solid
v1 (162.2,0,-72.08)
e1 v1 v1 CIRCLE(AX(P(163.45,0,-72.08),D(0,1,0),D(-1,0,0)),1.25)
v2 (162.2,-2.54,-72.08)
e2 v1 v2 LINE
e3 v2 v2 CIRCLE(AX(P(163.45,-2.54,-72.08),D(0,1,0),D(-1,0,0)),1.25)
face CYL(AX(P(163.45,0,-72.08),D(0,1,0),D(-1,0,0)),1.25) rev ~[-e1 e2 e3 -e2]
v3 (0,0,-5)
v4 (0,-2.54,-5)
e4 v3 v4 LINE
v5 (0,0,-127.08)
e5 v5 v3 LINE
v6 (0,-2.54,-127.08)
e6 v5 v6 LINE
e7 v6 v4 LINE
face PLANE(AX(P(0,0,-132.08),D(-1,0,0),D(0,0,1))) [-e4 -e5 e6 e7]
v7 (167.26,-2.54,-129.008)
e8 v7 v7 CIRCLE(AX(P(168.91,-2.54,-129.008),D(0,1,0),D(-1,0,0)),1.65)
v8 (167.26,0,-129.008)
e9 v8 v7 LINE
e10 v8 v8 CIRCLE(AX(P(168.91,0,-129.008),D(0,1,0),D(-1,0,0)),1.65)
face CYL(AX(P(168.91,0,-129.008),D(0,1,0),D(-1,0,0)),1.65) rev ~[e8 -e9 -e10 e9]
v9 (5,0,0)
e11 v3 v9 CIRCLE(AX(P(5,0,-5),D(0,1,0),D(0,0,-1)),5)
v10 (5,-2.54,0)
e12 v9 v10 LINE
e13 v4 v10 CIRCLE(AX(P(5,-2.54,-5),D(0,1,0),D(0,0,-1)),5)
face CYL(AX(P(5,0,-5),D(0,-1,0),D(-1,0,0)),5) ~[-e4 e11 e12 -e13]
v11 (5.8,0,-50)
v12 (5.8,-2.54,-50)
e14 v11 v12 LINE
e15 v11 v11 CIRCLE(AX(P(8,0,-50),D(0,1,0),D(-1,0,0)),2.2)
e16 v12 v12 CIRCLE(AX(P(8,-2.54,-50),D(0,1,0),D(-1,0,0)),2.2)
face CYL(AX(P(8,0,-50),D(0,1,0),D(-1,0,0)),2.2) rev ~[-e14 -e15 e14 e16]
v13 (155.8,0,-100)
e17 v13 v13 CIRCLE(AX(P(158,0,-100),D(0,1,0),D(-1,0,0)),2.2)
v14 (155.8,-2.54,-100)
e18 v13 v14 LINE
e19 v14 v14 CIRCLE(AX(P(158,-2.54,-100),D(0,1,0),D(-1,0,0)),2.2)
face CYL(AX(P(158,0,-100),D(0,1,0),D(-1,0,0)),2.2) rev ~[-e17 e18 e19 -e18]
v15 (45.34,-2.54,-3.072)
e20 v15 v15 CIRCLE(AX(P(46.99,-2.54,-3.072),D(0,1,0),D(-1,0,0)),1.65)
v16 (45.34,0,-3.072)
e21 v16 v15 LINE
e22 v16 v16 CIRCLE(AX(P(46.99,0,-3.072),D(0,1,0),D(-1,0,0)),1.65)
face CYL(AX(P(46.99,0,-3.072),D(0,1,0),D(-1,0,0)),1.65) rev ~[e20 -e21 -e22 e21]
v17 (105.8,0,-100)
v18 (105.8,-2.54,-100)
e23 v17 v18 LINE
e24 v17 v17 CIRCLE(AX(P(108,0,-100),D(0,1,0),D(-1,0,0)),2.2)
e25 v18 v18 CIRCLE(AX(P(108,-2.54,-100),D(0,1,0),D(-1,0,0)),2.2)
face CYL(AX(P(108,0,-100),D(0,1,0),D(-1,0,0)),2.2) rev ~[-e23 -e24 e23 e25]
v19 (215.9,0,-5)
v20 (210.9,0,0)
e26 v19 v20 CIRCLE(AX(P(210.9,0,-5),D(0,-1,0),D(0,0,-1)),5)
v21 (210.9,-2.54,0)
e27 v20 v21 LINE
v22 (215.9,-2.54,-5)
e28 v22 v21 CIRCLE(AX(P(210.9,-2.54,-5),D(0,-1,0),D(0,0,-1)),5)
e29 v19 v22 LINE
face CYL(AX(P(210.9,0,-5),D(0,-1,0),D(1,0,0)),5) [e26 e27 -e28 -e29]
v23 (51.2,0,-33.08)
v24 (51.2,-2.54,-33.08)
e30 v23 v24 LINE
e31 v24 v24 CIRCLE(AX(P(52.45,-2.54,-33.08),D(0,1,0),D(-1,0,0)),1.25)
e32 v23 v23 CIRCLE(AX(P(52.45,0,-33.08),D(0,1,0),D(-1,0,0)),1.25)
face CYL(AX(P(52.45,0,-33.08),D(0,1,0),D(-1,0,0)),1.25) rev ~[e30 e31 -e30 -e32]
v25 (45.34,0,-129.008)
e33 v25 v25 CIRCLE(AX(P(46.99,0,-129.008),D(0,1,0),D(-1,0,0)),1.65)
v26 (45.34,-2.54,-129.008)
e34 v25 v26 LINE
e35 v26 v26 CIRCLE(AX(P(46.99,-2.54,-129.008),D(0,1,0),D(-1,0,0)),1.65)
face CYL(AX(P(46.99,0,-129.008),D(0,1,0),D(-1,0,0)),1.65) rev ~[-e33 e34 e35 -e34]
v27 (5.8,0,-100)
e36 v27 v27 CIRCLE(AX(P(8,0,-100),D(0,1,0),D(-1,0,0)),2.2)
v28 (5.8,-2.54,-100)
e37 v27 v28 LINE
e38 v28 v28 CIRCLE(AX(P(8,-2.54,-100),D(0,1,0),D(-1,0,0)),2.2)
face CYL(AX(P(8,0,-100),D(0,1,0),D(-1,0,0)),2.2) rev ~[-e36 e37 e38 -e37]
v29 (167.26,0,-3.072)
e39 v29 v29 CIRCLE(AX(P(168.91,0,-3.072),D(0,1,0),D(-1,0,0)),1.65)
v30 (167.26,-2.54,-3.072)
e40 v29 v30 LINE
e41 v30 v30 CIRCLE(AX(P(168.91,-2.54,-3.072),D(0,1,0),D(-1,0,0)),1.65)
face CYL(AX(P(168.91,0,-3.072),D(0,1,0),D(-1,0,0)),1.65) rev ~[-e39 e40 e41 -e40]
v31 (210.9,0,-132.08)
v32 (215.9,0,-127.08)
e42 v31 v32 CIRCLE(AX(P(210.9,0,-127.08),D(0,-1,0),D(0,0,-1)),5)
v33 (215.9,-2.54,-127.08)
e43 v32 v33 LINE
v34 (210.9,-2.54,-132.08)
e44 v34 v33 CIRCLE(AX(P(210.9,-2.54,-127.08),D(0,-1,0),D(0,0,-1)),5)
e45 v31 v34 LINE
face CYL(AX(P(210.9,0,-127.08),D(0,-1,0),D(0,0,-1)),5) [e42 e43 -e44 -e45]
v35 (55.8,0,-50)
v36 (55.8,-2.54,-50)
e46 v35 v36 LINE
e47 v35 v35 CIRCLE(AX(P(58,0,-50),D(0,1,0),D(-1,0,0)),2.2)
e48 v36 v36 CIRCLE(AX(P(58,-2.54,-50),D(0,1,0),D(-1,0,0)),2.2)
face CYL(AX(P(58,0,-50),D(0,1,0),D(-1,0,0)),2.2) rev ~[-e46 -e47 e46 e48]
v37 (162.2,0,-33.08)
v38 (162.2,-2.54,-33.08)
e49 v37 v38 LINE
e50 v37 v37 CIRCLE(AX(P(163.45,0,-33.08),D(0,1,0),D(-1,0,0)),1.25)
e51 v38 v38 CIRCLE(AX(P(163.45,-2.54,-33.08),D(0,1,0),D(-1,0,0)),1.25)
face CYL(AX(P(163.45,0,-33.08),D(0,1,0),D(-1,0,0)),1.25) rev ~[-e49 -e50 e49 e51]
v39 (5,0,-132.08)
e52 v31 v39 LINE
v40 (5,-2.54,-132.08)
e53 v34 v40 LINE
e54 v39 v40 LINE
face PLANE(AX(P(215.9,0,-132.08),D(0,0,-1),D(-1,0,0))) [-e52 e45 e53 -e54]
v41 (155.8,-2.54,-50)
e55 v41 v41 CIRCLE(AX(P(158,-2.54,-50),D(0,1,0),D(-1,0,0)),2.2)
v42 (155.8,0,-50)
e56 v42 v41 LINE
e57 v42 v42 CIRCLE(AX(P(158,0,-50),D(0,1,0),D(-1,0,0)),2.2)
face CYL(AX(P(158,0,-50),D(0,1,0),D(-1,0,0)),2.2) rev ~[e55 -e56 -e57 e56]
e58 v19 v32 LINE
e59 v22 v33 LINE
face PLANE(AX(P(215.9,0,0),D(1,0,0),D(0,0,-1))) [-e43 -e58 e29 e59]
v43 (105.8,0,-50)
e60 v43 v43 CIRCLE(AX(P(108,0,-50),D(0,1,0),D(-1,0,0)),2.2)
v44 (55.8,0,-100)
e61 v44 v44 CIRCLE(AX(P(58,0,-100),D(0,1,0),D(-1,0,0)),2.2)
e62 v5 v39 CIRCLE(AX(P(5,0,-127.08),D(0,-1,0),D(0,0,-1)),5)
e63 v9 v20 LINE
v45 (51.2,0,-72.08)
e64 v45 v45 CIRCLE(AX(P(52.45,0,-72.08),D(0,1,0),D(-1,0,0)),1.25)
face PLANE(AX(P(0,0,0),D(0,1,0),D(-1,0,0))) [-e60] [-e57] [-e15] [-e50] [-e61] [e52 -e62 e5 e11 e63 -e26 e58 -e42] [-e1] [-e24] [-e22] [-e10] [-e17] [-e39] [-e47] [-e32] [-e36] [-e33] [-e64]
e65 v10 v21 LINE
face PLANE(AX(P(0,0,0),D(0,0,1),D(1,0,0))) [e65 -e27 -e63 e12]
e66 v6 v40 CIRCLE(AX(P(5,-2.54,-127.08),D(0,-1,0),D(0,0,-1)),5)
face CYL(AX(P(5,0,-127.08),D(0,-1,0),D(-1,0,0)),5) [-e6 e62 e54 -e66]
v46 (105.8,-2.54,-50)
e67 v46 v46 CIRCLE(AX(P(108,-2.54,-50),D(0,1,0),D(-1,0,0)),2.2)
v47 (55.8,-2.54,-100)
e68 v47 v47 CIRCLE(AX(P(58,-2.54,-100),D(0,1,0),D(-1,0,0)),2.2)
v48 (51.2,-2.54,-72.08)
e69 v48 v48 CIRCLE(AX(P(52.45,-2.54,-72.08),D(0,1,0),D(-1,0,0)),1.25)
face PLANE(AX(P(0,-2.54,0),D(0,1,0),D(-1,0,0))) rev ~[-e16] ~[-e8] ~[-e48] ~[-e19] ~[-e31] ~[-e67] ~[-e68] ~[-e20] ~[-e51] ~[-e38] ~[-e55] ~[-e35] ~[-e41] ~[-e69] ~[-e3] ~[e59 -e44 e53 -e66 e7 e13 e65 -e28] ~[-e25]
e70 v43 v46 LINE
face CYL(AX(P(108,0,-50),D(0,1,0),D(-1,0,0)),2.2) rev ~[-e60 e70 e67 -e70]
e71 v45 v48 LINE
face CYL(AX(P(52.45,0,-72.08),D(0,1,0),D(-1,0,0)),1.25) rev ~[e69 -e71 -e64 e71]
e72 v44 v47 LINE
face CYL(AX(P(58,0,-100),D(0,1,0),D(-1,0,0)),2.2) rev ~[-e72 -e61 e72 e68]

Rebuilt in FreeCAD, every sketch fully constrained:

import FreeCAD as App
import Part
import Sketcher

V = App.Vector


def edges_at(feature, points):
    """Names of the edges that pass closest to the given points."""
    edges = feature.Shape.Edges
    near = lambda p: min(range(len(edges)), key=lambda i: edges[i].distToShape(Part.Vertex(*p))[0])
    return sorted({f"Edge{near(p) + 1}" for p in points})


def add_polygon(sketch, points):
    """Adds a closed chain of lines whose ends are joined by coincident constraints."""
    first, n = sketch.GeometryCount, len(points)
    for a, b in zip(points, points[1:] + points[:1]):
        sketch.addGeometry(Part.LineSegment(App.Vector(*a, 0), App.Vector(*b, 0)), False)
    for i in range(n):
        sketch.addConstraint(Sketcher.Constraint("Coincident", first + i, 2, first + (i + 1) % n, 1))

doc = App.newDocument("Part")
params = doc.addObject("Spreadsheet::Sheet", "Params")
for row, (alias, value) in enumerate([
    ("sketch1_diameter", "3.3 mm"),
    ("sketch1_diameter2", "4.4 mm"),
    ("sketch1_diameter3", "2.5 mm"),
    ("sketch1_width", "215.9 mm"),
    ("sketch1_height", "132.08 mm"),
    ("pad1_length", "2.54 mm"),
    ("fillet_radius", "5 mm"),
], start=1):
    params.set(f"A{row}", alias)
    params.set(f"B{row}", "=" + value)
    params.setAlias(f"B{row}", alias)

body = doc.addObject("PartDesign::Body", "Body")

# Sketch on XZ plane
sketch1 = doc.addObject("Sketcher::SketchObject", "Sketch")
body.addObject(sketch1)
sketch1.AttachmentSupport = (doc.XZ_Plane, [""])
sketch1.MapMode = "FlatFace"
add_polygon(sketch1, [(0, -132.1), (0, 0), (215.9, 0), (215.9, -132.1)])  # lines 0-3
sketch1.addGeometry(Part.Circle(V(168.9, -129, 0), V(0, 0, 1), 1.6), False)  # 4
sketch1.addGeometry(Part.Circle(V(158, -100, 0), V(0, 0, 1), 2.2), False)  # 5
sketch1.addGeometry(Part.Circle(V(108, -100, 0), V(0, 0, 1), 2.2), False)  # 6
sketch1.addGeometry(Part.Circle(V(163.4, -72.1, 0), V(0, 0, 1), 1.2), False)  # 7
sketch1.addGeometry(Part.Circle(V(58, -100, 0), V(0, 0, 1), 2.2), False)  # 8
sketch1.addGeometry(Part.Circle(V(47, -129, 0), V(0, 0, 1), 1.6), False)  # 9
sketch1.addGeometry(Part.Circle(V(8, -100, 0), V(0, 0, 1), 2.2), False)  # 10
sketch1.addGeometry(Part.Circle(V(52.5, -72.1, 0), V(0, 0, 1), 1.2), False)  # 11
sketch1.addGeometry(Part.Circle(V(163.4, -33.1, 0), V(0, 0, 1), 1.2), False)  # 12
sketch1.addGeometry(Part.Circle(V(158, -50, 0), V(0, 0, 1), 2.2), False)  # 13
sketch1.addGeometry(Part.Circle(V(108, -50, 0), V(0, 0, 1), 2.2), False)  # 14
sketch1.addGeometry(Part.Circle(V(168.9, -3.1, 0), V(0, 0, 1), 1.6), False)  # 15
sketch1.addGeometry(Part.Circle(V(58, -50, 0), V(0, 0, 1), 2.2), False)  # 16
sketch1.addGeometry(Part.Circle(V(8, -50, 0), V(0, 0, 1), 2.2), False)  # 17
sketch1.addGeometry(Part.Circle(V(52.5, -33.1, 0), V(0, 0, 1), 1.2), False)  # 18
sketch1.addGeometry(Part.Circle(V(47, -3.1, 0), V(0, 0, 1), 1.6), False)  # 19
sketch1.addConstraint([
    Sketcher.Constraint("Vertical", 0),
    Sketcher.Constraint("Horizontal", 1),
    Sketcher.Constraint("Vertical", 2),
    Sketcher.Constraint("Horizontal", 3),
    Sketcher.Constraint("Coincident", 0, 2, -1, 1),
    Sketcher.Constraint("Equal", 5, 6),
    Sketcher.Constraint("Equal", 6, 8),
    Sketcher.Constraint("Equal", 4, 9),
    Sketcher.Constraint("Equal", 8, 10),
    Sketcher.Constraint("Equal", 7, 11),
    Sketcher.Constraint("Equal", 11, 12),
    Sketcher.Constraint("Equal", 10, 13),
    Sketcher.Constraint("Equal", 13, 14),
    Sketcher.Constraint("Equal", 9, 15),
    Sketcher.Constraint("Equal", 14, 16),
    Sketcher.Constraint("Equal", 16, 17),
    Sketcher.Constraint("Equal", 12, 18),
    Sketcher.Constraint("Equal", 15, 19),
    Sketcher.Constraint("Horizontal", 5, 3, 6, 3),
    Sketcher.Constraint("Horizontal", 6, 3, 8, 3),
    Sketcher.Constraint("Horizontal", 4, 3, 9, 3),
    Sketcher.Constraint("Horizontal", 8, 3, 10, 3),
    Sketcher.Constraint("Horizontal", 7, 3, 11, 3),
    Sketcher.Constraint("Horizontal", 13, 3, 14, 3),
    Sketcher.Constraint("Horizontal", 14, 3, 16, 3),
    Sketcher.Constraint("Horizontal", 16, 3, 17, 3),
    Sketcher.Constraint("Horizontal", 12, 3, 18, 3),
    Sketcher.Constraint("Horizontal", 15, 3, 19, 3),
    Sketcher.Constraint("Vertical", 7, 3, 12, 3),
    Sketcher.Constraint("Vertical", 5, 3, 13, 3),
    Sketcher.Constraint("Vertical", 6, 3, 14, 3),
    Sketcher.Constraint("Vertical", 4, 3, 15, 3),
    Sketcher.Constraint("Vertical", 8, 3, 16, 3),
    Sketcher.Constraint("Vertical", 10, 3, 17, 3),
    Sketcher.Constraint("Vertical", 11, 3, 18, 3),
    Sketcher.Constraint("Vertical", 9, 3, 19, 3),
    Sketcher.Constraint("Diameter", 4, 3.3),
    Sketcher.Constraint("Diameter", 5, 4.4),
    Sketcher.Constraint("Diameter", 7, 2.5),
    Sketcher.Constraint("DistanceX", 1, 1, 1, 2, 215.9),
    Sketcher.Constraint("DistanceX", -1, 1, 10, 3, 8.0),
    Sketcher.Constraint("DistanceY", 13, 3, -1, 1, 50.0),
    Sketcher.Constraint("DistanceX", 6, 3, 5, 3, 50.0),
    Sketcher.Constraint("DistanceX", 8, 3, 6, 3, 50.0),
    Sketcher.Constraint("DistanceX", 10, 3, 8, 3, 50.0),
    Sketcher.Constraint("DistanceY", 7, 3, 12, 3, 39.0),
    Sketcher.Constraint("DistanceX", 11, 3, 12, 3, 111.0),
    Sketcher.Constraint("DistanceY", 5, 3, 13, 3, 50.0),
    Sketcher.Constraint("DistanceY", 2, 2, 7, 3, 60.0),
    Sketcher.Constraint("DistanceY", 0, 1, 0, 2, 132.08),
    Sketcher.Constraint("DistanceX", -1, 1, 9, 3, 46.99),
    Sketcher.Constraint("DistanceX", -1, 1, 11, 3, 52.45),
    Sketcher.Constraint("DistanceX", 9, 3, 4, 3, 121.92),
    Sketcher.Constraint("DistanceY", 15, 3, -1, 1, 3.072),
    Sketcher.Constraint("DistanceY", 2, 2, 4, 3, 3.072),
])
sketch1.setExpression("Constraints[40]", "Params.sketch1_diameter")
sketch1.setExpression("Constraints[41]", "Params.sketch1_diameter2")
sketch1.setExpression("Constraints[42]", "Params.sketch1_diameter3")
sketch1.setExpression("Constraints[43]", "Params.sketch1_width")
sketch1.setExpression("Constraints[53]", "Params.sketch1_height")
pad1 = doc.addObject("PartDesign::Pad", "Pad")
body.addObject(pad1)
pad1.Profile = sketch1
pad1.setExpression("Length", "Params.pad1_length")
doc.recompute()

fillet = doc.addObject("PartDesign::Fillet", "Fillet")
body.addObject(fillet)
fillet.Base = (pad1, edges_at(pad1, [
    (0, -1.27, 0),
    (215.9, -1.27, 0),
    (215.9, -1.27, -132.08),
    (0, -1.27, -132.08),
]))
fillet.setExpression("Radius", "Params.fillet_radius")

doc.recompute()
